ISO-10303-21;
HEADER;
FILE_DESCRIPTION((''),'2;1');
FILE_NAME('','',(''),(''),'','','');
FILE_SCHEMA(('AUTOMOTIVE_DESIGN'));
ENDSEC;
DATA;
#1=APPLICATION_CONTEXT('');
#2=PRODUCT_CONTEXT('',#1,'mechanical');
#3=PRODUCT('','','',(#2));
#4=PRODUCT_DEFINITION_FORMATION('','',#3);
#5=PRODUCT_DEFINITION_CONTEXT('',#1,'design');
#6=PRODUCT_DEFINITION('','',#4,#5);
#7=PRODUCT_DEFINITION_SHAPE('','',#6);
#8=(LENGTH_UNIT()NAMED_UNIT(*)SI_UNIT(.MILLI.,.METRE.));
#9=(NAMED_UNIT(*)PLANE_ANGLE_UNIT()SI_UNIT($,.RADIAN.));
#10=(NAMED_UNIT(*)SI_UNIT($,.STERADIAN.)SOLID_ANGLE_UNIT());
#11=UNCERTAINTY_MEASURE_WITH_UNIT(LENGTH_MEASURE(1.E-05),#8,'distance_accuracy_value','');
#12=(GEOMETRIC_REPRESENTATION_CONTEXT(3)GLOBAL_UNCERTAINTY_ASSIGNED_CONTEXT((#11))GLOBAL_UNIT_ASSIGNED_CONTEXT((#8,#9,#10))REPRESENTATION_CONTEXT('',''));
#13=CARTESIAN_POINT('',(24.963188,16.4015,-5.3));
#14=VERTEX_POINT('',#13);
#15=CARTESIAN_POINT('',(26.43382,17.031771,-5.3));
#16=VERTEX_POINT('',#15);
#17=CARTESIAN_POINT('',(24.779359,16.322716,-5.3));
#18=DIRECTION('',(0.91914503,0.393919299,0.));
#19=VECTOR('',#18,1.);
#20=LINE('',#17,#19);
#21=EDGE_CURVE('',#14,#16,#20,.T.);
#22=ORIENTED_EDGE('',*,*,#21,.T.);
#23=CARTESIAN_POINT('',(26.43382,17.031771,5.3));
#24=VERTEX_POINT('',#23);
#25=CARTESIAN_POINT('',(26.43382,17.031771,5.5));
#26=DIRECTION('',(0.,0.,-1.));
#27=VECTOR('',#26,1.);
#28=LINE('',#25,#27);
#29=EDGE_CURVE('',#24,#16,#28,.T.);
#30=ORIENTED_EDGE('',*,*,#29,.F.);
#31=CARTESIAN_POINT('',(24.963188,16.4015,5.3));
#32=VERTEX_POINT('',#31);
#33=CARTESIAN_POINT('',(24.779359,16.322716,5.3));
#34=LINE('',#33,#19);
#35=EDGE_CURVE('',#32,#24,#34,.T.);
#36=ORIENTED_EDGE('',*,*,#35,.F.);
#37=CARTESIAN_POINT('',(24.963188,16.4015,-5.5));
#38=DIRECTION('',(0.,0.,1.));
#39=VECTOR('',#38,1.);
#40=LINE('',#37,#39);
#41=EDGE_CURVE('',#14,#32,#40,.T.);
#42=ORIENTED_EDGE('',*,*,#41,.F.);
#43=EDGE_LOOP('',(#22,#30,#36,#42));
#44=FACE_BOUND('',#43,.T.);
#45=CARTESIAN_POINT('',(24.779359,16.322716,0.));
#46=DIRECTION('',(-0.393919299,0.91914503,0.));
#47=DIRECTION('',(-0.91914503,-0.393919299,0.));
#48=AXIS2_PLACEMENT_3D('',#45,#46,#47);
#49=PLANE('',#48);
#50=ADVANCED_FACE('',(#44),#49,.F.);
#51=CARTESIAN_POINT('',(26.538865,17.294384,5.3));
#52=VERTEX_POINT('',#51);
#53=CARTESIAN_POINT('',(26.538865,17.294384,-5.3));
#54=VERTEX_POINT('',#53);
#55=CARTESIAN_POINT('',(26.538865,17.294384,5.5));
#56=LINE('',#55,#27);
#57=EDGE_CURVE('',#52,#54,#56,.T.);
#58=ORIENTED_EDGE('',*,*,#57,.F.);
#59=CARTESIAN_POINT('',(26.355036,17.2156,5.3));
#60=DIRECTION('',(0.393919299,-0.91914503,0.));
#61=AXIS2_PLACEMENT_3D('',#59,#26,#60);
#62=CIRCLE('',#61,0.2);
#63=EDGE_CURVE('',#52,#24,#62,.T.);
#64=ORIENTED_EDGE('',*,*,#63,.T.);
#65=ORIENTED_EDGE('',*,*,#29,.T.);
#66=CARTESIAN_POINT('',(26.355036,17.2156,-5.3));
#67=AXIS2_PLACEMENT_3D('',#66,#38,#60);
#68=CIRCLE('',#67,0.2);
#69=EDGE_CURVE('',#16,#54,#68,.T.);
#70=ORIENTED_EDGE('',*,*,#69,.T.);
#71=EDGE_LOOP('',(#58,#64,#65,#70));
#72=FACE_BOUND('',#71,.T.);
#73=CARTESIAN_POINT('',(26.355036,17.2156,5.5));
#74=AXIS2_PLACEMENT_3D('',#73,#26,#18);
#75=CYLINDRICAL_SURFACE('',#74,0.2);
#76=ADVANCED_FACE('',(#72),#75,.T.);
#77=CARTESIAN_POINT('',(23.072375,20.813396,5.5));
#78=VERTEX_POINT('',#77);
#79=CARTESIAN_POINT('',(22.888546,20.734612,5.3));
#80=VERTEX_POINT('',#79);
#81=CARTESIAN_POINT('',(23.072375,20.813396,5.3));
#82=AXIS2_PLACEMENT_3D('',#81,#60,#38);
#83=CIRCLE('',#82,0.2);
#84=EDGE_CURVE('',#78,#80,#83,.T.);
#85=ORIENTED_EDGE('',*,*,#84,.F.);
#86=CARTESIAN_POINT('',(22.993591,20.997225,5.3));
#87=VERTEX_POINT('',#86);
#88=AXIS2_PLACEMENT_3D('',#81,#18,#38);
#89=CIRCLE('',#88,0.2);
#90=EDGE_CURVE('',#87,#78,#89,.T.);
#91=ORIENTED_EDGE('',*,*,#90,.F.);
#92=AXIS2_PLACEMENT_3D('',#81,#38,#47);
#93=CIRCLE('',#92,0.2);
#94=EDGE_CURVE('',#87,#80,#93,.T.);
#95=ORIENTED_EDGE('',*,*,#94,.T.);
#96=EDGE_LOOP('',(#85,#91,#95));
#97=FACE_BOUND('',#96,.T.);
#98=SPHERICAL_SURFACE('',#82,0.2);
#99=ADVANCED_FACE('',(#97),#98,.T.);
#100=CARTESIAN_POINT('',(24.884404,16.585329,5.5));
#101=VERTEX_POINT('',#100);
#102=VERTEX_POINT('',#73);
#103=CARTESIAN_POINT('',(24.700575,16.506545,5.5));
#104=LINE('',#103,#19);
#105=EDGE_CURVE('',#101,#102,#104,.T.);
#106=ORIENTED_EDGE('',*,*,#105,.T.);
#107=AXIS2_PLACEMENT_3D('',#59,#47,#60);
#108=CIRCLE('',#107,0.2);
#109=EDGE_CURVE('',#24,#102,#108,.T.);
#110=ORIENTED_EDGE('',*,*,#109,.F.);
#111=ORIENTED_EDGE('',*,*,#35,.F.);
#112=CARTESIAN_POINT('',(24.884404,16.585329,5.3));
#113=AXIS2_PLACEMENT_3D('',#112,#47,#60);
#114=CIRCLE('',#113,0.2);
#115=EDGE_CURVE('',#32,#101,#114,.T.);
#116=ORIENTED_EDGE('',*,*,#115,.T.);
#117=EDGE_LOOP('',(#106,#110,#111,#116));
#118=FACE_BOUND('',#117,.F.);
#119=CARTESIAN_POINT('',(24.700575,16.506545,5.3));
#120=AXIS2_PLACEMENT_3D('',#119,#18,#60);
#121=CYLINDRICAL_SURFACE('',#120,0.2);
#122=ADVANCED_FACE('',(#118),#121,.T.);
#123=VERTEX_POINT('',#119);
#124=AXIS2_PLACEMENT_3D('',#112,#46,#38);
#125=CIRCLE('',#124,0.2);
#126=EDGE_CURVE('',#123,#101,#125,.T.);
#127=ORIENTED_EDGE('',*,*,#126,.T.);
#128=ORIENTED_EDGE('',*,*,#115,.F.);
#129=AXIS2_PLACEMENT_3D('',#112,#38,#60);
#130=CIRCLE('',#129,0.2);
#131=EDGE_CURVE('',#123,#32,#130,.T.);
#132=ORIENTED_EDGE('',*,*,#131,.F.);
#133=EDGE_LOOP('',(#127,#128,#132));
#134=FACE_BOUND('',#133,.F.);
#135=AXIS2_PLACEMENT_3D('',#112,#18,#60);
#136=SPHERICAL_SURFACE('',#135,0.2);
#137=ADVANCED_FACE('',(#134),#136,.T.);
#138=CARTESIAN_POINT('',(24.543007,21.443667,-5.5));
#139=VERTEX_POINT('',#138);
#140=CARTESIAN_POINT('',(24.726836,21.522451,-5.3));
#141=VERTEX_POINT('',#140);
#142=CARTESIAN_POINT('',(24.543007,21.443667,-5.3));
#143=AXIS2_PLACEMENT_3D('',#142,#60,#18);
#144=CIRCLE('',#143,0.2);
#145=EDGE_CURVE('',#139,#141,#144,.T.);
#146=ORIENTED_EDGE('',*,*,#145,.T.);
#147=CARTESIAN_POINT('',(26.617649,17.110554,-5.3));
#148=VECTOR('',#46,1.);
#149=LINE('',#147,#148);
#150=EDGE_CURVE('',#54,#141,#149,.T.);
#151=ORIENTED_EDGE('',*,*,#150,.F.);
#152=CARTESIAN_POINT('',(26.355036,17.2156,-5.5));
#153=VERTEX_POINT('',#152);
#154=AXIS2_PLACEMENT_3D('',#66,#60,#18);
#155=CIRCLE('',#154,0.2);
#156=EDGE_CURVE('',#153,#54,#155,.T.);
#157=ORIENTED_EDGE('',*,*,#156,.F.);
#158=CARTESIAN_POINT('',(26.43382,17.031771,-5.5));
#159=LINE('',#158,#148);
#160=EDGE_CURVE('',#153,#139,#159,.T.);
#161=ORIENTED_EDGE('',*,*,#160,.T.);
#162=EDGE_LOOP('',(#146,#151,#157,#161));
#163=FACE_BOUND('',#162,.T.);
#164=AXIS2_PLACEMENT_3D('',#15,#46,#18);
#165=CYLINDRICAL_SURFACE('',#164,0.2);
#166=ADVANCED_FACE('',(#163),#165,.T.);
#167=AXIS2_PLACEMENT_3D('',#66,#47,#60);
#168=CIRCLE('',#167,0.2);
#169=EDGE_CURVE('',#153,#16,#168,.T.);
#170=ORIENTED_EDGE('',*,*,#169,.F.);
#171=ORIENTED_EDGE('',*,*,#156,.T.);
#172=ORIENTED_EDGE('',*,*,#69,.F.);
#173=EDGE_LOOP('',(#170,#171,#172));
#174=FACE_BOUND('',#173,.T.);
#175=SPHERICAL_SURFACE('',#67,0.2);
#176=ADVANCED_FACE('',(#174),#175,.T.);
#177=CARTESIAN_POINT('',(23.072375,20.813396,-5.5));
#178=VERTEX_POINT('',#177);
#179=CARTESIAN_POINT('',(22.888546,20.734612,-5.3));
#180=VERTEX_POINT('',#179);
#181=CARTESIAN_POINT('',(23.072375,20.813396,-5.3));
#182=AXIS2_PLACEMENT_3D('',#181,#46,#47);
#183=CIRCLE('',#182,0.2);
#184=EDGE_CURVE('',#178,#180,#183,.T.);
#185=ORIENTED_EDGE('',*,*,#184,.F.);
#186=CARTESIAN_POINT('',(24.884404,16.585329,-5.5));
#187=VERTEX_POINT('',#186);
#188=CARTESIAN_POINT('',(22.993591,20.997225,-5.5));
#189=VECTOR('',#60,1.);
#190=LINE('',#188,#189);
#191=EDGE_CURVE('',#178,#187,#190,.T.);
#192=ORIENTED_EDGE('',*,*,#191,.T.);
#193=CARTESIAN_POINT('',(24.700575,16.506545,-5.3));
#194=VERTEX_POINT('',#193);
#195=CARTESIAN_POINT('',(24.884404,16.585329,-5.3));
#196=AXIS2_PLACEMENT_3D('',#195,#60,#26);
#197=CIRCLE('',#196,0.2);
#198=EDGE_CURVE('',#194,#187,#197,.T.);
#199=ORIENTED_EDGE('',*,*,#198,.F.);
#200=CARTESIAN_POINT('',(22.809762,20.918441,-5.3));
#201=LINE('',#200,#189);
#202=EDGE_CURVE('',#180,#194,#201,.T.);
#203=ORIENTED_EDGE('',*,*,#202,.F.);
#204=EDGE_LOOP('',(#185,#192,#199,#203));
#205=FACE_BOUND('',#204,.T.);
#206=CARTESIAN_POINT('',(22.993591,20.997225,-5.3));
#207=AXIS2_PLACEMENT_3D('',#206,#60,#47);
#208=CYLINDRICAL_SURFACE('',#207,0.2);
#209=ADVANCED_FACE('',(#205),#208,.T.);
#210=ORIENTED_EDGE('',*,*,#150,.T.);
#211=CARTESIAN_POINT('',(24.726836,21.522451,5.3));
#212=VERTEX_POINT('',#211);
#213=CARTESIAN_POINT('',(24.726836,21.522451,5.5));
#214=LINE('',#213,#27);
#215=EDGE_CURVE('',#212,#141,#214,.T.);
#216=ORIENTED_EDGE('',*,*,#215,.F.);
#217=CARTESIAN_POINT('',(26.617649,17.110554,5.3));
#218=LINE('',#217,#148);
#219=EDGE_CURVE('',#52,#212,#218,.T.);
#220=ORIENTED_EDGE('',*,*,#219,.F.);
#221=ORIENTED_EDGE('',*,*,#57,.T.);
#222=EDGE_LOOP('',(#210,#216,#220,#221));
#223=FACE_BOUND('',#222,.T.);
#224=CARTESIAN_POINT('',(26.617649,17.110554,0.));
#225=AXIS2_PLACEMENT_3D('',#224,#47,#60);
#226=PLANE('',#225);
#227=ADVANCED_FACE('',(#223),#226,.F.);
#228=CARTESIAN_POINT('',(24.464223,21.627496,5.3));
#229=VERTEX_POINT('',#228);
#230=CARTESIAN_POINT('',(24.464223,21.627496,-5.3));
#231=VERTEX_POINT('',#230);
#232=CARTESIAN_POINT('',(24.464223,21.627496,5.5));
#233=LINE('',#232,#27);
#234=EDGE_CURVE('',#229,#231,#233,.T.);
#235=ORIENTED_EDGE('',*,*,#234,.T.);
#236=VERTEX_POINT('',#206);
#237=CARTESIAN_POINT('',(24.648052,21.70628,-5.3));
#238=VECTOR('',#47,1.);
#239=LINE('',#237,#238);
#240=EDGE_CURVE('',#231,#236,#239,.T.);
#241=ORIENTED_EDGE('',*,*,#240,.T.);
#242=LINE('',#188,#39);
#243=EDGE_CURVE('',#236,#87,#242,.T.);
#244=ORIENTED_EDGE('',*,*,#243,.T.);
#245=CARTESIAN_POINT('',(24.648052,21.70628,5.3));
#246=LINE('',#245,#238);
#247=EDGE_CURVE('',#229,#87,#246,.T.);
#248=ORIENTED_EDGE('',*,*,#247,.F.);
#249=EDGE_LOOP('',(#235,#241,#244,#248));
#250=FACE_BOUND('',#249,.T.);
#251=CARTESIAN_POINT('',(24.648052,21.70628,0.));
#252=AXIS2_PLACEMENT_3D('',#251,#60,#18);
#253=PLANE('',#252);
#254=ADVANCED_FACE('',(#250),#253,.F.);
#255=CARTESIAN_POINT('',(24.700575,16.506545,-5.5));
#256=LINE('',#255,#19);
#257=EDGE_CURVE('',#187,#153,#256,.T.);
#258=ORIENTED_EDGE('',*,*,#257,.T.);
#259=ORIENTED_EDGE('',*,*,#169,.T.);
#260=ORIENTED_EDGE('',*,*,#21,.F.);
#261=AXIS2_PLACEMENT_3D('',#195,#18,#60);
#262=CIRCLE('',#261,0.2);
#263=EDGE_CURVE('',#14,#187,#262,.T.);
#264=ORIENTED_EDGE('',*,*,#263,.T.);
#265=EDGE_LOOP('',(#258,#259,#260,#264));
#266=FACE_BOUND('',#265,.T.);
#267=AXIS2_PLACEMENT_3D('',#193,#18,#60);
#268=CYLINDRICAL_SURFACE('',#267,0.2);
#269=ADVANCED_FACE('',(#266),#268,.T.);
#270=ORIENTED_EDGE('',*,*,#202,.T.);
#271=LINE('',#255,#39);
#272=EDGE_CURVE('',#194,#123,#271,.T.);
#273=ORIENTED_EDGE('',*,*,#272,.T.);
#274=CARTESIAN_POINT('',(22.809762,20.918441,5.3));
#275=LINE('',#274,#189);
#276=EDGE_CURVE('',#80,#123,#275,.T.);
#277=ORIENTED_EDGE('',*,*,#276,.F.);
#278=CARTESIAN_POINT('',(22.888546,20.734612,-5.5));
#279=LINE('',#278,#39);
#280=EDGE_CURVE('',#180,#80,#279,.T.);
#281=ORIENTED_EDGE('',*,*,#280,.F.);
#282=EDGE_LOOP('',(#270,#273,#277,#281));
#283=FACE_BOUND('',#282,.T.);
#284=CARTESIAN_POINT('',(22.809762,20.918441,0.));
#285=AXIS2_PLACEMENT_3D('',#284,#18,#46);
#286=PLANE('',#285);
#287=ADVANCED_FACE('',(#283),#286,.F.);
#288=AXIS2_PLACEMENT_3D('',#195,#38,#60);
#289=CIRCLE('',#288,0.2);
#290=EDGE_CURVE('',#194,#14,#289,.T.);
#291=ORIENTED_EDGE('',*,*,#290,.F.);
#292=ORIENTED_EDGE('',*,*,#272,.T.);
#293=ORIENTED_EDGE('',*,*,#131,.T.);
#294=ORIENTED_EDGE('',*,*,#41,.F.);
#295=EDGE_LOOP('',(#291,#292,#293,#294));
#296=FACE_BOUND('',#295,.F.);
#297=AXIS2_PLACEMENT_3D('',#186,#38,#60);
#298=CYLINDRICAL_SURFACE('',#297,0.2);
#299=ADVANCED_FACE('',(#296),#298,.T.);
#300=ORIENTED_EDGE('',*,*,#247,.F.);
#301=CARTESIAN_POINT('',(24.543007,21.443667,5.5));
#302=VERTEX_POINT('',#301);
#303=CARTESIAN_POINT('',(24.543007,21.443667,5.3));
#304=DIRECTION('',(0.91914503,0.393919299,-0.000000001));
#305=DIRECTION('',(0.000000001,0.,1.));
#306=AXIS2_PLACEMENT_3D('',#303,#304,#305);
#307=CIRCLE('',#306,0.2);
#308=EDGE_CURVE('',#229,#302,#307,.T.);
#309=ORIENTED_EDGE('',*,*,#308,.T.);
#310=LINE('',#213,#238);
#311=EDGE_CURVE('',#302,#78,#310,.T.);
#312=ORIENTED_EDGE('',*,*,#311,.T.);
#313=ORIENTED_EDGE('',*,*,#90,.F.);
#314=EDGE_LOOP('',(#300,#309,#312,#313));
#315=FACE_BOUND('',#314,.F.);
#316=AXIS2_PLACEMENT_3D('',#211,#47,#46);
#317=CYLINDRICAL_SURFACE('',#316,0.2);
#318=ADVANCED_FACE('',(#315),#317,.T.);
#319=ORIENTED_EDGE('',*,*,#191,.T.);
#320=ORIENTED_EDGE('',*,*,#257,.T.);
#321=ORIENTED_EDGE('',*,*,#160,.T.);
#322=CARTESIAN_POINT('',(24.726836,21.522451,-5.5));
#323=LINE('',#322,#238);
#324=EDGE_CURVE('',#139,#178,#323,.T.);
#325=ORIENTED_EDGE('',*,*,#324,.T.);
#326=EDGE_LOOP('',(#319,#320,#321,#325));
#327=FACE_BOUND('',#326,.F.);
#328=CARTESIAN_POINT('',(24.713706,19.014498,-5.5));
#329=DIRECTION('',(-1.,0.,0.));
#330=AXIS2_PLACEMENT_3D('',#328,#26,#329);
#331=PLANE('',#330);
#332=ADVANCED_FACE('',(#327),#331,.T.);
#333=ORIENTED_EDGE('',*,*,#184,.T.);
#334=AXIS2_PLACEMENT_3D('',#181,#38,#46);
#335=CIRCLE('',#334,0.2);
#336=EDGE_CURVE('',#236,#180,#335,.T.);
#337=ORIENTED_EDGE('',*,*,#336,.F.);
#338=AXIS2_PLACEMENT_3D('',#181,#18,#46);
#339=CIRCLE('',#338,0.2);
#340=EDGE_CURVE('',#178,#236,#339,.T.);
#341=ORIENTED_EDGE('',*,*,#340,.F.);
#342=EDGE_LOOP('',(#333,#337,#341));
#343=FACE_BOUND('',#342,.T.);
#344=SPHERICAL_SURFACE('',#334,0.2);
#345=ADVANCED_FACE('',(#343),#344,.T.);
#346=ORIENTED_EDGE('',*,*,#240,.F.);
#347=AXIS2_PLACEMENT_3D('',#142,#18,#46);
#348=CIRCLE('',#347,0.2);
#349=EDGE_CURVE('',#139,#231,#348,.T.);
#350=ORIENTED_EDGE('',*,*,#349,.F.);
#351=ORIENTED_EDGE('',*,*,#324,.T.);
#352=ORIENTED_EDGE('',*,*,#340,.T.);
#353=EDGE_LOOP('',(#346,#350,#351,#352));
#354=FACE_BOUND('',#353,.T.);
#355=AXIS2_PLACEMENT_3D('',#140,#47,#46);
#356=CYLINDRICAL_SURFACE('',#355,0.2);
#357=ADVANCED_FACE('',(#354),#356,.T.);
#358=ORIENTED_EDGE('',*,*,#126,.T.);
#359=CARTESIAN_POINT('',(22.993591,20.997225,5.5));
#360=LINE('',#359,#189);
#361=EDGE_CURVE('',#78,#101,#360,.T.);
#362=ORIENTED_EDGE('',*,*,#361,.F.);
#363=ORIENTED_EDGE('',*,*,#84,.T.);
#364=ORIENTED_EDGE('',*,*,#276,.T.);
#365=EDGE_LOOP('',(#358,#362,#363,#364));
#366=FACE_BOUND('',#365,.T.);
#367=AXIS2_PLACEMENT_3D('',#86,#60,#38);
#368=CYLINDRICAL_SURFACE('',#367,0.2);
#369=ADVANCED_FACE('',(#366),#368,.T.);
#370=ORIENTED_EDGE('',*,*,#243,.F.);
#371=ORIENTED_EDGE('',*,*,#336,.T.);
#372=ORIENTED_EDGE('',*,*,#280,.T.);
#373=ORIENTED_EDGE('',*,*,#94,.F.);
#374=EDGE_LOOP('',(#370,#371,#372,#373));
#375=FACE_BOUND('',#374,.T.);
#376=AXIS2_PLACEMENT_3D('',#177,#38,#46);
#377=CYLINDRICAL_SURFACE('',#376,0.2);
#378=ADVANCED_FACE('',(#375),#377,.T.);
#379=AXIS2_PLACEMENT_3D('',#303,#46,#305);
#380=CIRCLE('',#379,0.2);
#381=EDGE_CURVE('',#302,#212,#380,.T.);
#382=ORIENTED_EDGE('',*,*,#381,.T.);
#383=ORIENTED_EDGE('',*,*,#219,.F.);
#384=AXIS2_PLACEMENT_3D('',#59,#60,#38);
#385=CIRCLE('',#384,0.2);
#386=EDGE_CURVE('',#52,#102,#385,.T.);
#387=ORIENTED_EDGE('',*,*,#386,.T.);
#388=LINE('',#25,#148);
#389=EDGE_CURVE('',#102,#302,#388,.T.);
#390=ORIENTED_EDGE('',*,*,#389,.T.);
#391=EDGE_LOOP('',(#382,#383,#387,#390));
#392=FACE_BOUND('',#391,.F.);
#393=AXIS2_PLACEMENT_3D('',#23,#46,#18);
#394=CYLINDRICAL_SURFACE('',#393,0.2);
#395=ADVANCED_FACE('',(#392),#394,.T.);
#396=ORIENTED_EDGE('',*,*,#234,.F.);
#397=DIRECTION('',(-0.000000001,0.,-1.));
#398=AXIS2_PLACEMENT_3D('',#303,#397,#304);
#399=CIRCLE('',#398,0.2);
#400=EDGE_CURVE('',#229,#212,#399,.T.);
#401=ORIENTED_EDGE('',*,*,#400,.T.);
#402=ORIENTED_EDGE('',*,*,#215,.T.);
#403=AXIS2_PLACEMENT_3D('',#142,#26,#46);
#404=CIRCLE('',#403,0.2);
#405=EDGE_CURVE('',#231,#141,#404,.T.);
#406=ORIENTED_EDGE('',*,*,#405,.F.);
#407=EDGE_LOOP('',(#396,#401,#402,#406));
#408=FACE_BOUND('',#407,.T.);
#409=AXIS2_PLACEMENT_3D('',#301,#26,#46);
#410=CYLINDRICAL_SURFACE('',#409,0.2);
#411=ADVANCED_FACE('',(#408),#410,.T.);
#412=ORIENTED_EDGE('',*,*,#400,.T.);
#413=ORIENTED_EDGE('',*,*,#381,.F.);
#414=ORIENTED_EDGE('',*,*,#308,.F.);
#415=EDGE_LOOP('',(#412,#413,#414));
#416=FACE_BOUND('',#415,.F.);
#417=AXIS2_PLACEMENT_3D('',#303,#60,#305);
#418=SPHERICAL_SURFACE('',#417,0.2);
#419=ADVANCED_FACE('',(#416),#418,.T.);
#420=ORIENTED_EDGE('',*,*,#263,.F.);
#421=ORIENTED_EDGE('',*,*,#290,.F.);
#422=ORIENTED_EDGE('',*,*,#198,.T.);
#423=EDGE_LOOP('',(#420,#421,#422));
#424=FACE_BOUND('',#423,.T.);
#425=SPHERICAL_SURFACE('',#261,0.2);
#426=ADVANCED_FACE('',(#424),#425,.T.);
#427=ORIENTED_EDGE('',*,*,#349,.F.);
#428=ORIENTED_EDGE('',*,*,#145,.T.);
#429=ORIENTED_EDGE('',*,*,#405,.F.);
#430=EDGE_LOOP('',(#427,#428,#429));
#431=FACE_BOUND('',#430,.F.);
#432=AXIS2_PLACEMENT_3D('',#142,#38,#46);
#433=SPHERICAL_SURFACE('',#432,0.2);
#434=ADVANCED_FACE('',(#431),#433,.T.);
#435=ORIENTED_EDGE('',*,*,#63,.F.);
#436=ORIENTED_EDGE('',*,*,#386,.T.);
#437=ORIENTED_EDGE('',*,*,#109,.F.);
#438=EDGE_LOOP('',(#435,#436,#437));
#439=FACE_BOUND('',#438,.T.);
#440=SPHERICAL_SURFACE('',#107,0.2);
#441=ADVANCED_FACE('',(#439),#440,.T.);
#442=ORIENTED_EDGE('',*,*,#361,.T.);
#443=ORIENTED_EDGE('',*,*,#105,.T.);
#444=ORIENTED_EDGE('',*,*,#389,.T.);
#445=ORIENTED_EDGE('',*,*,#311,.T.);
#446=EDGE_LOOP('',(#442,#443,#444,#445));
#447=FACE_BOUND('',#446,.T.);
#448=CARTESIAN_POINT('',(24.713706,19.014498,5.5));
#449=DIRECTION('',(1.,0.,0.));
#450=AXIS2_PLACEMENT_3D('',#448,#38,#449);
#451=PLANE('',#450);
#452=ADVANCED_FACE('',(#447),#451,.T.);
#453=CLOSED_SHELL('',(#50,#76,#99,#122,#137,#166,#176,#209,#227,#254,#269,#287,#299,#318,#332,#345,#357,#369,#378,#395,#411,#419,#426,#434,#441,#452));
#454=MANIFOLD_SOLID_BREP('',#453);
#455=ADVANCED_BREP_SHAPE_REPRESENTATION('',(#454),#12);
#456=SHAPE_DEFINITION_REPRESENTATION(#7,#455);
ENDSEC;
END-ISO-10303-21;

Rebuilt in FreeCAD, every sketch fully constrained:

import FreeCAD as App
import Part
import Sketcher

V = App.Vector

doc = App.newDocument("Part")
params = doc.addObject("Spreadsheet::Sheet", "Params")
for row, (alias, value) in enumerate([
    ("sketch1_length", "2 mm"),
    ("sketch1_length2", "5 mm"),
    ("pad1_length", "5.5 mm"),
    ("fillet_radius", "0.2 mm"),
], start=1):
    params.set(f"A{row}", alias)
    params.set(f"B{row}", "=" + value)
    params.setAlias(f"B{row}", alias)

body = doc.addObject("PartDesign::Body", "Body")

# Sketch on XY plane
sketch1 = doc.addObject("Sketcher::SketchObject", "Sketch")
body.addObject(sketch1)
sketch1.AttachmentSupport = (doc.XY_Plane, [""])
sketch1.MapMode = "FlatFace"
sketch1.addGeometry(Part.LineSegment(V(24.6, 21.7, 0), V(22.8, 20.9, 0)), False)
sketch1.addGeometry(Part.LineSegment(V(22.8, 20.9, 0), V(24.8, 16.3, 0)), False)
sketch1.addGeometry(Part.LineSegment(V(24.8, 16.3, 0), V(26.6, 17.1, 0)), False)
sketch1.addGeometry(Part.LineSegment(V(26.6, 17.1, 0), V(24.6, 21.7, 0)), False)
sketch1.addConstraint(Sketcher.Constraint("Coincident", 0, 2, 1, 1))
sketch1.addConstraint(Sketcher.Constraint("Coincident", 1, 2, 2, 1))
sketch1.addConstraint(Sketcher.Constraint("Coincident", 2, 2, 3, 1))
sketch1.addConstraint(Sketcher.Constraint("Coincident", 3, 2, 0, 1))
sketch1.addConstraint(Sketcher.Constraint("Perpendicular", 0, 1))
sketch1.addConstraint(Sketcher.Constraint("Perpendicular", 1, 2))
sketch1.addConstraint(Sketcher.Constraint("Perpendicular", 2, 3))
sketch1.addConstraint(Sketcher.Constraint("Distance", 0, 2.0))
sketch1.addConstraint(Sketcher.Constraint("Distance", 1, 5.0))
sketch1.addConstraint(Sketcher.Constraint("DistanceY", -1, 1, 0, 2, 20.918441))
sketch1.addConstraint(Sketcher.Constraint("DistanceX", -1, 1, 1, 2, 24.779359))
sketch1.addConstraint(Sketcher.Constraint("DistanceX", -1, 1, 2, 2, 26.617649))
sketch1.setExpression("Constraints[7]", "Params.sketch1_length")
sketch1.setExpression("Constraints[8]", "Params.sketch1_length2")
pad1 = doc.addObject("PartDesign::Pad", "Pad")
body.addObject(pad1)
pad1.Profile = sketch1
pad1.setExpression("Length", "Params.pad1_length")
body2 = doc.addObject("PartDesign::Body", "Body001")
doc.recompute()

body2.BaseFeature = body
doc.recompute()

mirroring = doc.addObject("Part::Mirroring", "Mirroring")
mirroring.Source = body
mirroring.Base = V(0, 0, 0)
mirroring.Normal = V(0, 0, 1)
body3 = doc.addObject("PartDesign::Body", "Body002")
body3.BaseFeature = mirroring
boolean = doc.addObject("PartDesign::Boolean", "Boolean")
body2.addObject(boolean)
boolean.Type = "Fuse"
boolean.addObjects([body3])
doc.recompute()

fillet = doc.addObject("PartDesign::Fillet", "Fillet")
body2.addObject(fillet)
fillet.Base = (boolean, ["Edge1"])
fillet.UseAllEdges = True
fillet.setExpression("Radius", "Params.fillet_radius")
mirroring.Visibility = False

doc.recompute()
